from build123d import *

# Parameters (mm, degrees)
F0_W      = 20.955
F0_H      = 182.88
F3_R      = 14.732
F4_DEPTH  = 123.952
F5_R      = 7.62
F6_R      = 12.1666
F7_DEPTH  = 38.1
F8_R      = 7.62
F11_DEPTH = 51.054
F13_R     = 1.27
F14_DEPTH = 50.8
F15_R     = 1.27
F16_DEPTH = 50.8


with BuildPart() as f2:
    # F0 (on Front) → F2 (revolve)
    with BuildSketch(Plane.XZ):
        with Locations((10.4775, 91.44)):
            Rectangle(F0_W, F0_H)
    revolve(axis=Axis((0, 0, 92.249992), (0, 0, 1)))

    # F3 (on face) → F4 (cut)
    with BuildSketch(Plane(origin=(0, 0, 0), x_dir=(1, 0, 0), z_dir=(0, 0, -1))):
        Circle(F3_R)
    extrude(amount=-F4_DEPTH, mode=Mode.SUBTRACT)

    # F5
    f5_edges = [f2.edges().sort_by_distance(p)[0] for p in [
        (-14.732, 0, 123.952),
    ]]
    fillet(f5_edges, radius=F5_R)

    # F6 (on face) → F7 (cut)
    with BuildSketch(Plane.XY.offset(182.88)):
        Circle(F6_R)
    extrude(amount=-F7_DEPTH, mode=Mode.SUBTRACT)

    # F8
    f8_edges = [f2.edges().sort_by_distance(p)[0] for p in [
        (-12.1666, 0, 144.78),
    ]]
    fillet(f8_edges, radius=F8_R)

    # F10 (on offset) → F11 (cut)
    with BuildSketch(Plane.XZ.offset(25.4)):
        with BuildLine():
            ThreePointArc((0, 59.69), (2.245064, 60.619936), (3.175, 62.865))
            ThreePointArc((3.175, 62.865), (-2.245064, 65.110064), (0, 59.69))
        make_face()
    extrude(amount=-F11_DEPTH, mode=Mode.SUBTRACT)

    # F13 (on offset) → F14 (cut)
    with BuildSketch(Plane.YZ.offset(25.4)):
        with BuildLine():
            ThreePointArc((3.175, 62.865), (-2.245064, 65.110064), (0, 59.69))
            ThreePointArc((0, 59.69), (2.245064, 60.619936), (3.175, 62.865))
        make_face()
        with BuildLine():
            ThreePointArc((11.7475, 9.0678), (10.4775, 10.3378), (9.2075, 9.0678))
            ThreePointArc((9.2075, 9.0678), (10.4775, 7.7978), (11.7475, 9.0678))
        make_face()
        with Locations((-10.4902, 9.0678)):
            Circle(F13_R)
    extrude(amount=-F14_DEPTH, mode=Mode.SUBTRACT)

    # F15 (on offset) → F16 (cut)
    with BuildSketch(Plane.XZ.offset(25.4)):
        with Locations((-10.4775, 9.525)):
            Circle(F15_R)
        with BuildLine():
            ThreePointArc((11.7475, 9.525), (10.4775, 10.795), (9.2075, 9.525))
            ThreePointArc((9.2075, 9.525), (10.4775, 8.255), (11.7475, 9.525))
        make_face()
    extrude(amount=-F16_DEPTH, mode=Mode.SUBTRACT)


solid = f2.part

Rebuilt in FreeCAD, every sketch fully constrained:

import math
import FreeCAD as App
import Part
import Sketcher

V = App.Vector
Q = App.Units.Quantity


def edges_at(feature, points):
    """Names of the edges that pass closest to the given points."""
    edges = feature.Shape.Edges
    near = lambda p: min(range(len(edges)), key=lambda i: edges[i].distToShape(Part.Vertex(*p))[0])
    return sorted({f"Edge{near(p) + 1}" for p in points})

doc = App.newDocument("Part")
body = doc.addObject("PartDesign::Body", "Body")

# Sketch on XZ plane
sketch1 = body.newObject("Sketcher::SketchObject", "Sketch")
sketch1.AttachmentSupport = (doc.getObject("XZ_Plane"), [""])
sketch1.MapMode = "FlatFace"
sketch1.addGeometry([
    Part.LineSegment(V(0, 182.88, 0), V(0, 0, 0)),
    Part.LineSegment(V(0, 0, 0), V(20.955, 0, 0)),
    Part.LineSegment(V(20.955, 0, 0), V(20.955, 182.88, 0)),
    Part.LineSegment(V(20.955, 182.88, 0), V(0, 182.88, 0)),
], False)
sketch1.addConstraint([
    Sketcher.Constraint("Coincident", 0, 2, 1, 1),
    Sketcher.Constraint("Coincident", 1, 2, 2, 1),
    Sketcher.Constraint("Coincident", 2, 2, 3, 1),
    Sketcher.Constraint("Coincident", 3, 2, 0, 1),
    Sketcher.Constraint("Vertical", 0),
    Sketcher.Constraint("Horizontal", 1),
    Sketcher.Constraint("Vertical", 2),
    Sketcher.Constraint("Horizontal", 3),
    Sketcher.Constraint("Coincident", 0, 2, -1, 1),
    Sketcher.Constraint("DistanceY", 0, 2, 0, 1, Q("7.2 in")),
    Sketcher.Constraint("DistanceX", 1, 1, 1, 2, Q("0.825 in")),
])
revolution = body.newObject("PartDesign::Revolution", "Revolution")
revolution.Profile = sketch1
revolution.ReferenceAxis = (sketch1, ["V_Axis"])
revolution.Angle = 360

# Sketch on XY plane
sketch2 = body.newObject("Sketcher::SketchObject", "Sketch001")
sketch2.AttachmentSupport = (doc.getObject("XY_Plane"), [""])
sketch2.MapMode = "FlatFace"
sketch2.addGeometry(Part.Circle(V(0, 0, 0), V(0, 0, 1), 14.732), False)
sketch2.addConstraint([
    Sketcher.Constraint("Coincident", 0, 3, -1, 1),
    Sketcher.Constraint("Diameter", 0, Q("1.16 in")),
])
pocket1 = body.newObject("PartDesign::Pocket", "Pocket")
pocket1.Profile = sketch2
pocket1.Length = Q("4.88 in")
pocket1.Reversed = True
doc.recompute()

fillet = body.newObject("PartDesign::Fillet", "Fillet")
fillet.Base = (pocket1, edges_at(pocket1, [(-14.732, 0, 123.952)]))
fillet.Radius = Q("0.3 in")

# Sketch on XY plane
sketch3 = body.newObject("Sketcher::SketchObject", "Sketch002")
sketch3.AttachmentSupport = (doc.getObject("XY_Plane"), [""])
sketch3.MapMode = "FlatFace"
sketch3.AttachmentOffset = App.Placement(V(0, 0, 7.2 * 25.4), App.Rotation())
sketch3.addGeometry(Part.Circle(V(0, 0, 0), V(0, 0, 1), 12.1666), False)
sketch3.addConstraint([
    Sketcher.Constraint("Coincident", 0, 3, -1, 1),
    Sketcher.Constraint("Diameter", 0, Q("0.958 in")),
])
pocket2 = body.newObject("PartDesign::Pocket", "Pocket001")
pocket2.Profile = sketch3
pocket2.Length = Q("1.5 in")
doc.recompute()

fillet2 = body.newObject("PartDesign::Fillet", "Fillet001")
fillet2.Base = (pocket2, edges_at(pocket2, [(-12.167, 0, 144.78)]))
fillet2.Radius = Q("0.3 in")

# Sketch on XZ plane
sketch4 = body.newObject("Sketcher::SketchObject", "Sketch003")
sketch4.AttachmentSupport = (doc.getObject("XZ_Plane"), [""])
sketch4.MapMode = "FlatFace"
sketch4.AttachmentOffset = App.Placement(V(0, 0, 1 * 25.4), App.Rotation())
sketch4.addGeometry([
    Part.ArcOfCircle(Part.Circle(V(0, 62.865, 0), V(0, 0, 1), 3.175), math.radians(-89.999998), math.radians(-0.000002)),
    Part.ArcOfCircle(Part.Circle(V(0, 62.865, 0), V(0, 0, 1), 3.175), math.radians(0), math.radians(270)),
], False)
sketch4.addConstraint([
    Sketcher.Constraint("Tangent", 0, 1, 1, 2),
    Sketcher.Constraint("Coincident", 1, 1, 0, 2),
    Sketcher.Constraint("PointOnObject", 0, 3, -2),
    Sketcher.Constraint("PointOnObject", 0, 1, -2),
    Sketcher.Constraint("Horizontal", 0, 3, 1, 1),
    Sketcher.Constraint("Radius", 0, Q("0.125 in")),
    Sketcher.Constraint("DistanceY", -1, 1, 0, 1, Q("2.35 in")),
])
pocket3 = body.newObject("PartDesign::Pocket", "Pocket002")
pocket3.Profile = sketch4
pocket3.Length = Q("2.01 in")

# Sketch on YZ plane
sketch5 = body.newObject("Sketcher::SketchObject", "Sketch004")
sketch5.AttachmentSupport = (doc.getObject("YZ_Plane"), [""])
sketch5.MapMode = "FlatFace"
sketch5.AttachmentOffset = App.Placement(V(0, 0, 1 * 25.4), App.Rotation())
sketch5.addGeometry([
    Part.ArcOfCircle(Part.Circle(V(0, 62.865, 0), V(0, 0, 1), 3.175), math.radians(0), math.radians(270)),
    Part.ArcOfCircle(Part.Circle(V(0, 62.865, 0), V(0, 0, 1), 3.175), math.radians(-89.999998), math.radians(-0.000002)),
    Part.Circle(V(10.4775, 9.0678, 0), V(0, 0, 1), 1.27),
    Part.Circle(V(-10.4902, 9.0678, 0), V(0, 0, 1), 1.27),
], False)
sketch5.addConstraint([
    Sketcher.Constraint("Tangent", 0, 1, 1, 2),
    Sketcher.Constraint("Coincident", 1, 1, 0, 2),
    Sketcher.Constraint("Equal", 2, 3),
    Sketcher.Constraint("PointOnObject", 0, 3, -2),
    Sketcher.Constraint("PointOnObject", 1, 1, -2),
    Sketcher.Constraint("Horizontal", 2, 3, 3, 3),
    Sketcher.Constraint("Horizontal", 1, 3, 0, 1),
    Sketcher.Constraint("Diameter", 2, Q("0.1 in")),
    Sketcher.Constraint("Radius", 0, Q("0.125 in")),
    Sketcher.Constraint("DistanceY", -1, 1, 1, 1, Q("2.35 in")),
    Sketcher.Constraint("DistanceY", -1, 1, 2, 3, Q("0.357 in")),
    Sketcher.Constraint("DistanceX", 3, 3, -1, 1, Q("0.413 in")),
    Sketcher.Constraint("DistanceX", -1, 1, 2, 3, Q("0.4125 in")),
])
pocket4 = body.newObject("PartDesign::Pocket", "Pocket003")
pocket4.Profile = sketch5
pocket4.Length = Q("2 in")

# Sketch on XZ plane
sketch6 = body.newObject("Sketcher::SketchObject", "Sketch005")
sketch6.AttachmentSupport = (doc.getObject("XZ_Plane"), [""])
sketch6.MapMode = "FlatFace"
sketch6.AttachmentOffset = App.Placement(V(0, 0, 1 * 25.4), App.Rotation())
sketch6.addGeometry([
    Part.Circle(V(-10.4775, 9.525, 0), V(0, 0, 1), 1.27),
    Part.Circle(V(10.4775, 9.525, 0), V(0, 0, 1), 1.27),
], False)
sketch6.addConstraint([
    Sketcher.Constraint("Equal", 0, 1),
    Sketcher.Constraint("Symmetric", 0, 3, 1, 3, -2),
    Sketcher.Constraint("Diameter", 0, Q("0.1 in")),
    Sketcher.Constraint("DistanceY", -1, 1, 0, 3, Q("0.375 in")),
    Sketcher.Constraint("DistanceX", 0, 3, 1, 3, Q("0.825 in")),
])
pocket5 = body.newObject("PartDesign::Pocket", "Pocket004")
pocket5.Profile = sketch6
pocket5.Length = Q("2 in")

doc.recompute()
